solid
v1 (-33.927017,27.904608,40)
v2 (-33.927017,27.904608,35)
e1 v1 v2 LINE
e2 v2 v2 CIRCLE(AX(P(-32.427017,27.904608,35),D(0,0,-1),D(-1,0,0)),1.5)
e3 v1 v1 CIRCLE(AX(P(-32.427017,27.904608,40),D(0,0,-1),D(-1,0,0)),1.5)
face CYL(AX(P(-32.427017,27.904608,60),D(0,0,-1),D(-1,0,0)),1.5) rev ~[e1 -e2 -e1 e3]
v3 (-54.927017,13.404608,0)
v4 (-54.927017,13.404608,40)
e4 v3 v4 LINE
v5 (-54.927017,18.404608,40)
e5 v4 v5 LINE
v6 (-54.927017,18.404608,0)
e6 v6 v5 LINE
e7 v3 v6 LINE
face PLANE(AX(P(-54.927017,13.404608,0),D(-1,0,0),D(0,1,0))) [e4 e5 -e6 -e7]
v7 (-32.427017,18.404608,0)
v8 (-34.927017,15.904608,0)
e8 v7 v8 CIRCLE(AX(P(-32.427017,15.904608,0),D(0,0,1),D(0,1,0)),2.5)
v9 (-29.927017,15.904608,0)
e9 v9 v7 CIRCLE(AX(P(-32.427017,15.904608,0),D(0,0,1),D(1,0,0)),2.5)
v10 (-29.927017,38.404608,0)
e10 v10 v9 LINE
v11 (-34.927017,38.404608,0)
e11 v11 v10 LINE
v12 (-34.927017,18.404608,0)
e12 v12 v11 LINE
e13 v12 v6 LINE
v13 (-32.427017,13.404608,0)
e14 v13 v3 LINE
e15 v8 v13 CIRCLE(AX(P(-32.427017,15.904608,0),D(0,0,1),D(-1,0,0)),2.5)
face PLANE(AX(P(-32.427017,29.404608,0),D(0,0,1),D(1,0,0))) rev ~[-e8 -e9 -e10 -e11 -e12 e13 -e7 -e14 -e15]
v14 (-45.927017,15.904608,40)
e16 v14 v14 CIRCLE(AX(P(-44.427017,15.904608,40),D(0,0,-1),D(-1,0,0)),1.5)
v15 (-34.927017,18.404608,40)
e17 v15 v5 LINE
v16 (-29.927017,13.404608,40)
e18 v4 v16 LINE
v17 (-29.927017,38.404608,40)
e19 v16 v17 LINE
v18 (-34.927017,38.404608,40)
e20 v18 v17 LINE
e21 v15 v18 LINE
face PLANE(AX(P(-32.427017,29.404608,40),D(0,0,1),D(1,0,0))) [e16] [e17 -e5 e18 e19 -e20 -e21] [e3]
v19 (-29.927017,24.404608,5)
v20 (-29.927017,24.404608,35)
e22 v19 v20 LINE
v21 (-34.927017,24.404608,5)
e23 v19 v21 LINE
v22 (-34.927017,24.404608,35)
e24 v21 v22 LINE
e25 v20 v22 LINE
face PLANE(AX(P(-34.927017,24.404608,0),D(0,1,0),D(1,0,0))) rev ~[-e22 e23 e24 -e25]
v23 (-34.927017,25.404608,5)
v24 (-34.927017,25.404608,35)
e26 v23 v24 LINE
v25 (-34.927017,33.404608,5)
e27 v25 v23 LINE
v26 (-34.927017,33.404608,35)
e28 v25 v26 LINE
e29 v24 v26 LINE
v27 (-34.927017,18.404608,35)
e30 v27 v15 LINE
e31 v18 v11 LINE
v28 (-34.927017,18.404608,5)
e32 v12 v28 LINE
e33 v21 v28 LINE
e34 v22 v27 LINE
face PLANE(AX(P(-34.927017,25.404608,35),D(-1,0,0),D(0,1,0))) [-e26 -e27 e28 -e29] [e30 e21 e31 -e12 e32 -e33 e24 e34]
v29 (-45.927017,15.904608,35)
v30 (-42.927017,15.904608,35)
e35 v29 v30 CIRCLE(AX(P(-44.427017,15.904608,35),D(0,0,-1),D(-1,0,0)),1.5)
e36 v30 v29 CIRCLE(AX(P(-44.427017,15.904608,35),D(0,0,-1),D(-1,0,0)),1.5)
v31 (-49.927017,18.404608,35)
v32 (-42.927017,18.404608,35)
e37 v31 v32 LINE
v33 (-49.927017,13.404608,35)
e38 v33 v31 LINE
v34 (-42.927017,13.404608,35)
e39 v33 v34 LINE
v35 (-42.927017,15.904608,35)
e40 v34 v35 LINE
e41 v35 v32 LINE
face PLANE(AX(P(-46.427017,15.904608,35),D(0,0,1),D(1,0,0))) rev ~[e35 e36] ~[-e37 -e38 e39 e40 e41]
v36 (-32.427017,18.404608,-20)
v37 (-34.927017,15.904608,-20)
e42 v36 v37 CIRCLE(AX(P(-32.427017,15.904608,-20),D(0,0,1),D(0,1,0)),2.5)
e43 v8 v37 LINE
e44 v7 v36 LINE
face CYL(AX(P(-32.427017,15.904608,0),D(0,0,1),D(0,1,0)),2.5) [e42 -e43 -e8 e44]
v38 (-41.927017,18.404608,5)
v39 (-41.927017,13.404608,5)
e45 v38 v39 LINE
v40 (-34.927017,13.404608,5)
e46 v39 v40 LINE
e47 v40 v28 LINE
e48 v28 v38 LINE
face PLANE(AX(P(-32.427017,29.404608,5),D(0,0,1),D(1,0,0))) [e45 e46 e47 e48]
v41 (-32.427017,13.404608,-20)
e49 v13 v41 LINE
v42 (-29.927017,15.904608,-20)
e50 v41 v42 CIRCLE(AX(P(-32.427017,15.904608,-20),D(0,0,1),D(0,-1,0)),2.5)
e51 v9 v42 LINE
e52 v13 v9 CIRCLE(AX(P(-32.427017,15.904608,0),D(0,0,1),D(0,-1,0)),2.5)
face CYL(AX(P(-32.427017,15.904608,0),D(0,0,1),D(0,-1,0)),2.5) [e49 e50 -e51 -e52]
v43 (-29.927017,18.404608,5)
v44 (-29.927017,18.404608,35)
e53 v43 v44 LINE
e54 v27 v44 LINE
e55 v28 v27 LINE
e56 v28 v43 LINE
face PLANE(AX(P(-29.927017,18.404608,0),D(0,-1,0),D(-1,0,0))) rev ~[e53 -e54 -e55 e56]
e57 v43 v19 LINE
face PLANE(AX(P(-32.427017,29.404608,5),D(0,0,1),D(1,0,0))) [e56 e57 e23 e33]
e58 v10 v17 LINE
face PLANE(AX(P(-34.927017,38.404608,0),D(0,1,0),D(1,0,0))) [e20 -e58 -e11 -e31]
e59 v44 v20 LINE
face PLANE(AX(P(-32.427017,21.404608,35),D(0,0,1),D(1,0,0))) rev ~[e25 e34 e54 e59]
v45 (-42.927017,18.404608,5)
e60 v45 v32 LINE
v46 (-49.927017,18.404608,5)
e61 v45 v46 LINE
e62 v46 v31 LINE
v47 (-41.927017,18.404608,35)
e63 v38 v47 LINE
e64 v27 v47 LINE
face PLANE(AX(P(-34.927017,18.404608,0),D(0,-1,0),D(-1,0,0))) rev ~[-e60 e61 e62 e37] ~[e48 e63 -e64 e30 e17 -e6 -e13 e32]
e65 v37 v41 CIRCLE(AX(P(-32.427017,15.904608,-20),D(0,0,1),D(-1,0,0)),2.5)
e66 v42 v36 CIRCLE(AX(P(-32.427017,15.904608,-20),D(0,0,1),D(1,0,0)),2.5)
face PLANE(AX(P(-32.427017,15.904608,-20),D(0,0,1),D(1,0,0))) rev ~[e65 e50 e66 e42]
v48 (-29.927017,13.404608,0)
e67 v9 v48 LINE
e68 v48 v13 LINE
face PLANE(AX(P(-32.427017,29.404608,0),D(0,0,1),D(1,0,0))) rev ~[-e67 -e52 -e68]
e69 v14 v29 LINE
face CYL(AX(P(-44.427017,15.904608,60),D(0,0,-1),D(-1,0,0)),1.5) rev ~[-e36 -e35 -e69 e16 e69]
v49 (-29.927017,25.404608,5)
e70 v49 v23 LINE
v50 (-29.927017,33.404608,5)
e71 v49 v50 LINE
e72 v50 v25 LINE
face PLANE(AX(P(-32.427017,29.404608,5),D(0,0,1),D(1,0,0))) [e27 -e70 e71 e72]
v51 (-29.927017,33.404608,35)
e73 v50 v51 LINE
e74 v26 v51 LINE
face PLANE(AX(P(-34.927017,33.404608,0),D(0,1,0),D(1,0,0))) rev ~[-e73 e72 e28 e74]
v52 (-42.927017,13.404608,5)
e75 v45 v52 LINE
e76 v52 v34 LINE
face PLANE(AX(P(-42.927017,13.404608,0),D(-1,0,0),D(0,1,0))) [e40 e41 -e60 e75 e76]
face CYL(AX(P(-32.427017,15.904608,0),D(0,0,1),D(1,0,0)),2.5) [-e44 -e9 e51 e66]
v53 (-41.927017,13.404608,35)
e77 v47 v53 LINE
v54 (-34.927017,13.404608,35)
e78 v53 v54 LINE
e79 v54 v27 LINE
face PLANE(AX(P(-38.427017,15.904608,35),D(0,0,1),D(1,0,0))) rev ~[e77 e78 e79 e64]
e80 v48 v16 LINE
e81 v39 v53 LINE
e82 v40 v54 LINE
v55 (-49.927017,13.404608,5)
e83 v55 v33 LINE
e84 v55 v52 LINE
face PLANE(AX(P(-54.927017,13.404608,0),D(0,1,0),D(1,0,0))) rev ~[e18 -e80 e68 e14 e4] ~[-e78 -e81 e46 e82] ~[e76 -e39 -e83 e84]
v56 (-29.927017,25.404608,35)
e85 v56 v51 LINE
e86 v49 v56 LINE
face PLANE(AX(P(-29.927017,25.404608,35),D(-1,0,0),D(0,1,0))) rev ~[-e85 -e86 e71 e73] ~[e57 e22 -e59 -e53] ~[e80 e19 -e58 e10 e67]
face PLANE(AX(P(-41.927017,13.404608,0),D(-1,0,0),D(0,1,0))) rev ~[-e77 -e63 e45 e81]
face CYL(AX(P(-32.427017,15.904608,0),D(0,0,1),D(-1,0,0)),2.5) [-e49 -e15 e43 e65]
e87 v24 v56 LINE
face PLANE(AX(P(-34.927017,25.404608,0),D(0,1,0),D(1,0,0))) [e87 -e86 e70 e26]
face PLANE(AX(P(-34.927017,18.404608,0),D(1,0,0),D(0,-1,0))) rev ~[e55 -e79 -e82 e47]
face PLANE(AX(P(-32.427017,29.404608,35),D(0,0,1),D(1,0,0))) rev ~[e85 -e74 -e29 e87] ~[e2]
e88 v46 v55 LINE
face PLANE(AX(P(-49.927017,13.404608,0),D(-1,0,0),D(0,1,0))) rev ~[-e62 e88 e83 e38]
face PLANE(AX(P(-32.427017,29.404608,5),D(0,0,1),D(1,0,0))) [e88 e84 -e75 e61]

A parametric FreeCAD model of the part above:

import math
import FreeCAD as App
import Part
import Sketcher

V = App.Vector


def add_polygon(sketch, points):
    """Adds a closed chain of lines whose ends are joined by coincident constraints."""
    first, n = sketch.GeometryCount, len(points)
    for a, b in zip(points, points[1:] + points[:1]):
        sketch.addGeometry(Part.LineSegment(App.Vector(*a, 0), App.Vector(*b, 0)), False)
    for i in range(n):
        sketch.addConstraint(Sketcher.Constraint("Coincident", first + i, 2, first + (i + 1) % n, 1))

doc = App.newDocument("Part")
params = doc.addObject("Spreadsheet::Sheet", "Params")
for row, (alias, value) in enumerate([
    ("sketch1_width", "5 mm"),
    ("sketch1_width2", "20 mm"),
    ("pad1_length", "5 mm"),
    ("sketch2_width", "5 mm"),
    ("sketch2_width2", "1 mm"),
    ("pad2_length", "40 mm"),
    ("sketch3_width", "5 mm"),
    ("sketch3_width2", "7 mm"),
    ("sketch3_height", "8 mm"),
    ("sketch3_height2", "6 mm"),
    ("pad3_length", "5 mm"),
    ("sketch4_radius", "2.5 mm"),
    ("pad4_length", "20 mm"),
    ("sketch5_diameter", "3 mm"),
    ("hole_diameter", "3 mm"),
    ("hole_depth", "20 mm"),
], start=1):
    params.set(f"A{row}", alias)
    params.set(f"B{row}", "=" + value)
    params.setAlias(f"B{row}", alias)

body = doc.addObject("PartDesign::Body", "Body")

# Sketch on XY plane
sketch1 = body.newObject("Sketcher::SketchObject", "Sketch")
sketch1.AttachmentSupport = (doc.getObject("XY_Plane"), [""])
sketch1.MapMode = "FlatFace"
add_polygon(sketch1, [(-29.9, 38.4), (-34.9, 38.4), (-34.9, 18.4), (-54.9, 18.4), (-54.9, 13.4), (-29.9, 13.4)])  # lines 0-5
sketch1.addConstraint([
    Sketcher.Constraint("Horizontal", 0),
    Sketcher.Constraint("Vertical", 1),
    Sketcher.Constraint("Horizontal", 2),
    Sketcher.Constraint("Vertical", 3),
    Sketcher.Constraint("Horizontal", 4),
    Sketcher.Constraint("Vertical", 5),
    Sketcher.Constraint("Equal", 2, 1),
    Sketcher.Constraint("Equal", 0, 3),
    Sketcher.Constraint("DistanceX", 0, 2, 0, 1, 5.0),
    Sketcher.Constraint("DistanceX", 2, 2, 2, 1, 20.0),
    Sketcher.Constraint("DistanceX", 0, 2, -1, 1, 34.927017),
    Sketcher.Constraint("DistanceY", -1, 1, 0, 2, 38.404608),
])
sketch1.setExpression("Constraints[14]", "Params.sketch1_width")
sketch1.setExpression("Constraints[15]", "Params.sketch1_width2")
pad1 = body.newObject("PartDesign::Pad", "Pad")
pad1.Profile = sketch1
pad1.setExpression("Length", "Params.pad1_length")

# Sketch on XY plane
sketch2 = body.newObject("Sketcher::SketchObject", "Sketch001")
sketch2.AttachmentSupport = (doc.getObject("XY_Plane"), [""])
sketch2.MapMode = "FlatFace"
add_polygon(sketch2, [(-54.9, 18.4), (-54.9, 13.4), (-49.9, 13.4), (-49.9, 18.4)])  # lines 0-3
add_polygon(sketch2, [(-34.9, 18.4), (-34.9, 13.4), (-29.9, 13.4), (-29.9, 18.4)])  # lines 4-7
add_polygon(sketch2, [(-34.9, 38.4), (-34.9, 33.4), (-29.9, 33.4), (-29.9, 38.4)])  # lines 8-11
add_polygon(sketch2, [(-42.9, 18.4), (-42.9, 13.4), (-41.9, 13.4), (-41.9, 18.4)])  # lines 12-15
add_polygon(sketch2, [(-34.9, 25.4), (-34.9, 24.4), (-29.9, 24.4), (-29.9, 25.4)])  # lines 16-19
sketch2.addConstraint([
    Sketcher.Constraint("Vertical", 0),
    Sketcher.Constraint("Horizontal", 1),
    Sketcher.Constraint("Vertical", 2),
    Sketcher.Constraint("Horizontal", 3),
    Sketcher.Constraint("Vertical", 4),
    Sketcher.Constraint("Horizontal", 5),
    Sketcher.Constraint("Vertical", 6),
    Sketcher.Constraint("Horizontal", 7),
    Sketcher.Constraint("Vertical", 8),
    Sketcher.Constraint("Horizontal", 9),
    Sketcher.Constraint("Vertical", 10),
    Sketcher.Constraint("Horizontal", 11),
    Sketcher.Constraint("Vertical", 12),
    Sketcher.Constraint("Horizontal", 13),
    Sketcher.Constraint("Vertical", 14),
    Sketcher.Constraint("Horizontal", 15),
    Sketcher.Constraint("Vertical", 16),
    Sketcher.Constraint("Horizontal", 17),
    Sketcher.Constraint("Vertical", 18),
    Sketcher.Constraint("Horizontal", 19),
    Sketcher.Constraint("Horizontal", 1, 2, 4, 2),
    Sketcher.Constraint("Horizontal", 3, 2, 6, 2),
    Sketcher.Constraint("Horizontal", 5, 2, 12, 2),
    Sketcher.Constraint("Horizontal", 7, 2, 14, 2),
    Sketcher.Constraint("Vertical", 7, 2, 8, 2),
    Sketcher.Constraint("Vertical", 6, 2, 9, 2),
    Sketcher.Constraint("Vertical", 11, 2, 16, 2),
    Sketcher.Constraint("Vertical", 10, 2, 17, 2),
    Sketcher.Constraint("Equal", 3, 5),
    Sketcher.Constraint("Equal", 19, 0),
    Sketcher.Constraint("Equal", 6, 8),
    Sketcher.Constraint("Equal", 15, 16),
    Sketcher.Constraint("DistanceX", 1, 1, 1, 2, 5.0),
    Sketcher.Constraint("DistanceX", 13, 1, 13, 2, 1.0),
    Sketcher.Constraint("DistanceX", 1, 2, 4, 2, 15.0),
    Sketcher.Constraint("DistanceY", 7, 2, 8, 2, 15.0),
    Sketcher.Constraint("DistanceX", 1, 2, 12, 2, 7.0),
    Sketcher.Constraint("DistanceY", 7, 2, 16, 2, 6.0),
    Sketcher.Constraint("DistanceX", 0, 2, -1, 1, 54.927017),
    Sketcher.Constraint("DistanceY", -1, 1, 0, 2, 13.404608),
])
sketch2.setExpression("Constraints[52]", "Params.sketch2_width")
sketch2.setExpression("Constraints[53]", "Params.sketch2_width2")
pad2 = body.newObject("PartDesign::Pad", "Pad001")
pad2.Profile = sketch2
pad2.setExpression("Length", "Params.pad2_length")

# Sketch on XY plane
sketch3 = body.newObject("Sketcher::SketchObject", "Sketch002")
sketch3.AttachmentSupport = (doc.getObject("XY_Plane"), [""])
sketch3.MapMode = "FlatFace"
sketch3.AttachmentOffset = App.Placement(V(0, 0, 35), App.Rotation())
add_polygon(sketch3, [(-34.9, 33.4), (-34.9, 25.4), (-29.9, 25.4), (-29.9, 33.4)])  # lines 0-3
add_polygon(sketch3, [(-49.9, 18.4), (-49.9, 13.4), (-42.9, 13.4), (-42.9, 18.4)])  # lines 4-7
add_polygon(sketch3, [(-41.9, 18.4), (-41.9, 13.4), (-34.9, 13.4), (-34.9, 18.4)])  # lines 8-11
add_polygon(sketch3, [(-34.9, 24.4), (-34.9, 18.4), (-29.9, 18.4), (-29.9, 24.4)])  # lines 12-15
sketch3.addConstraint([
    Sketcher.Constraint("Vertical", 0),
    Sketcher.Constraint("Horizontal", 1),
    Sketcher.Constraint("Vertical", 2),
    Sketcher.Constraint("Horizontal", 3),
    Sketcher.Constraint("Vertical", 4),
    Sketcher.Constraint("Horizontal", 5),
    Sketcher.Constraint("Vertical", 6),
    Sketcher.Constraint("Horizontal", 7),
    Sketcher.Constraint("Vertical", 8),
    Sketcher.Constraint("Horizontal", 9),
    Sketcher.Constraint("Vertical", 10),
    Sketcher.Constraint("Horizontal", 11),
    Sketcher.Constraint("Vertical", 12),
    Sketcher.Constraint("Horizontal", 13),
    Sketcher.Constraint("Vertical", 14),
    Sketcher.Constraint("Horizontal", 15),
    Sketcher.Constraint("Coincident", 12, 2, 10, 2),
    Sketcher.Constraint("Horizontal", 5, 2, 8, 2),
    Sketcher.Constraint("Horizontal", 7, 2, 10, 2),
    Sketcher.Constraint("Vertical", 3, 2, 9, 2),
    Sketcher.Constraint("Vertical", 2, 2, 13, 2),
    Sketcher.Constraint("Equal", 7, 9),
    Sketcher.Constraint("Equal", 15, 4),
    Sketcher.Constraint("DistanceX", 1, 1, 1, 2, 5.0),
    Sketcher.Constraint("DistanceX", 5, 1, 5, 2, 7.0),
    Sketcher.Constraint("DistanceY", 0, 2, 0, 1, 8.0),
    Sketcher.Constraint("DistanceY", 12, 2, 12, 1, 6.0),
    Sketcher.Constraint("DistanceX", 4, 2, 0, 2, 15.0),
    Sketcher.Constraint("DistanceY", 4, 2, 0, 2, 12.0),
    Sketcher.Constraint("DistanceX", 0, 2, -1, 1, 34.927017),
    Sketcher.Constraint("DistanceY", -1, 1, 0, 2, 25.404608),
])
sketch3.setExpression("Constraints[39]", "Params.sketch3_width")
sketch3.setExpression("Constraints[40]", "Params.sketch3_width2")
sketch3.setExpression("Constraints[41]", "Params.sketch3_height")
sketch3.setExpression("Constraints[42]", "Params.sketch3_height2")
pad3 = body.newObject("PartDesign::Pad", "Pad002")
pad3.Profile = sketch3
pad3.setExpression("Length", "Params.pad3_length")

# Sketch on XY plane
sketch4 = body.newObject("Sketcher::SketchObject", "Sketch003")
sketch4.AttachmentSupport = (doc.getObject("XY_Plane"), [""])
sketch4.MapMode = "FlatFace"
sketch4.addGeometry([
    Part.ArcOfCircle(Part.Circle(V(-32.4, 15.9, 0), V(0, 0, 1), 2.5), math.radians(180), math.radians(270)),
    Part.ArcOfCircle(Part.Circle(V(-32.4, 15.9, 0), V(0, 0, 1), 2.5), math.radians(-90), math.radians(0)),
    Part.ArcOfCircle(Part.Circle(V(-32.4, 15.9, 0), V(0, 0, 1), 2.5), math.radians(0), math.radians(90)),
    Part.ArcOfCircle(Part.Circle(V(-32.4, 15.9, 0), V(0, 0, 1), 2.5), math.radians(90), math.radians(180)),
], False)
sketch4.addConstraint([
    Sketcher.Constraint("Tangent", 0, 2, 1, 1),
    Sketcher.Constraint("Tangent", 1, 2, 2, 1),
    Sketcher.Constraint("Tangent", 2, 2, 3, 1),
    Sketcher.Constraint("Tangent", 3, 2, 0, 1),
    Sketcher.Constraint("Equal", 0, 1),
    Sketcher.Constraint("Horizontal", 3, 3, 1, 2),
    Sketcher.Constraint("Horizontal", 1, 2, 3, 2),
    Sketcher.Constraint("Vertical", 3, 3, 0, 2),
    Sketcher.Constraint("Vertical", 0, 2, 2, 2),
    Sketcher.Constraint("Radius", 0, 2.5),
    Sketcher.Constraint("DistanceX", 0, 3, -1, 1, 32.427017),
    Sketcher.Constraint("DistanceY", -1, 1, 0, 3, 15.904608),
])
sketch4.setExpression("Constraints[9]", "Params.sketch4_radius")
pad4 = body.newObject("PartDesign::Pad", "Pad003")
pad4.Profile = sketch4
pad4.setExpression("Length", "Params.pad4_length")
pad4.Reversed = True

# Sketch on XY plane
sketch5 = body.newObject("Sketcher::SketchObject", "Sketch004")
sketch5.AttachmentSupport = (doc.getObject("XY_Plane"), [""])
sketch5.MapMode = "FlatFace"
sketch5.AttachmentOffset = App.Placement(V(0, 0, 40), App.Rotation())
sketch5.addGeometry([
    Part.Circle(V(-44.4, 15.9, 0), V(0, 0, 1), 1.5),
    Part.Circle(V(-32.4, 27.9, 0), V(0, 0, 1), 1.5),
], False)
sketch5.addConstraint([
    Sketcher.Constraint("Equal", 0, 1),
    Sketcher.Constraint("Diameter", 0, 3.0),
    Sketcher.Constraint("DistanceX", 0, 3, 1, 3, 12.0),
    Sketcher.Constraint("DistanceY", 0, 3, 1, 3, 12.0),
    Sketcher.Constraint("DistanceX", 0, 3, -1, 1, 44.427017),
    Sketcher.Constraint("DistanceY", -1, 1, 0, 3, 15.904608),
])
sketch5.setExpression("Constraints[1]", "Params.sketch5_diameter")
doc.recompute()
hole = body.newObject("PartDesign::Hole", "Hole")
hole.Profile = sketch5
hole.ThreadType = "None"
hole.setExpression("Diameter", "Params.hole_diameter")
hole.DepthType = "Dimension"
hole.setExpression("Depth", "Params.hole_depth")
hole.DrillPoint = "Angled"
hole.DrillPointAngle = 118

doc.recompute()
